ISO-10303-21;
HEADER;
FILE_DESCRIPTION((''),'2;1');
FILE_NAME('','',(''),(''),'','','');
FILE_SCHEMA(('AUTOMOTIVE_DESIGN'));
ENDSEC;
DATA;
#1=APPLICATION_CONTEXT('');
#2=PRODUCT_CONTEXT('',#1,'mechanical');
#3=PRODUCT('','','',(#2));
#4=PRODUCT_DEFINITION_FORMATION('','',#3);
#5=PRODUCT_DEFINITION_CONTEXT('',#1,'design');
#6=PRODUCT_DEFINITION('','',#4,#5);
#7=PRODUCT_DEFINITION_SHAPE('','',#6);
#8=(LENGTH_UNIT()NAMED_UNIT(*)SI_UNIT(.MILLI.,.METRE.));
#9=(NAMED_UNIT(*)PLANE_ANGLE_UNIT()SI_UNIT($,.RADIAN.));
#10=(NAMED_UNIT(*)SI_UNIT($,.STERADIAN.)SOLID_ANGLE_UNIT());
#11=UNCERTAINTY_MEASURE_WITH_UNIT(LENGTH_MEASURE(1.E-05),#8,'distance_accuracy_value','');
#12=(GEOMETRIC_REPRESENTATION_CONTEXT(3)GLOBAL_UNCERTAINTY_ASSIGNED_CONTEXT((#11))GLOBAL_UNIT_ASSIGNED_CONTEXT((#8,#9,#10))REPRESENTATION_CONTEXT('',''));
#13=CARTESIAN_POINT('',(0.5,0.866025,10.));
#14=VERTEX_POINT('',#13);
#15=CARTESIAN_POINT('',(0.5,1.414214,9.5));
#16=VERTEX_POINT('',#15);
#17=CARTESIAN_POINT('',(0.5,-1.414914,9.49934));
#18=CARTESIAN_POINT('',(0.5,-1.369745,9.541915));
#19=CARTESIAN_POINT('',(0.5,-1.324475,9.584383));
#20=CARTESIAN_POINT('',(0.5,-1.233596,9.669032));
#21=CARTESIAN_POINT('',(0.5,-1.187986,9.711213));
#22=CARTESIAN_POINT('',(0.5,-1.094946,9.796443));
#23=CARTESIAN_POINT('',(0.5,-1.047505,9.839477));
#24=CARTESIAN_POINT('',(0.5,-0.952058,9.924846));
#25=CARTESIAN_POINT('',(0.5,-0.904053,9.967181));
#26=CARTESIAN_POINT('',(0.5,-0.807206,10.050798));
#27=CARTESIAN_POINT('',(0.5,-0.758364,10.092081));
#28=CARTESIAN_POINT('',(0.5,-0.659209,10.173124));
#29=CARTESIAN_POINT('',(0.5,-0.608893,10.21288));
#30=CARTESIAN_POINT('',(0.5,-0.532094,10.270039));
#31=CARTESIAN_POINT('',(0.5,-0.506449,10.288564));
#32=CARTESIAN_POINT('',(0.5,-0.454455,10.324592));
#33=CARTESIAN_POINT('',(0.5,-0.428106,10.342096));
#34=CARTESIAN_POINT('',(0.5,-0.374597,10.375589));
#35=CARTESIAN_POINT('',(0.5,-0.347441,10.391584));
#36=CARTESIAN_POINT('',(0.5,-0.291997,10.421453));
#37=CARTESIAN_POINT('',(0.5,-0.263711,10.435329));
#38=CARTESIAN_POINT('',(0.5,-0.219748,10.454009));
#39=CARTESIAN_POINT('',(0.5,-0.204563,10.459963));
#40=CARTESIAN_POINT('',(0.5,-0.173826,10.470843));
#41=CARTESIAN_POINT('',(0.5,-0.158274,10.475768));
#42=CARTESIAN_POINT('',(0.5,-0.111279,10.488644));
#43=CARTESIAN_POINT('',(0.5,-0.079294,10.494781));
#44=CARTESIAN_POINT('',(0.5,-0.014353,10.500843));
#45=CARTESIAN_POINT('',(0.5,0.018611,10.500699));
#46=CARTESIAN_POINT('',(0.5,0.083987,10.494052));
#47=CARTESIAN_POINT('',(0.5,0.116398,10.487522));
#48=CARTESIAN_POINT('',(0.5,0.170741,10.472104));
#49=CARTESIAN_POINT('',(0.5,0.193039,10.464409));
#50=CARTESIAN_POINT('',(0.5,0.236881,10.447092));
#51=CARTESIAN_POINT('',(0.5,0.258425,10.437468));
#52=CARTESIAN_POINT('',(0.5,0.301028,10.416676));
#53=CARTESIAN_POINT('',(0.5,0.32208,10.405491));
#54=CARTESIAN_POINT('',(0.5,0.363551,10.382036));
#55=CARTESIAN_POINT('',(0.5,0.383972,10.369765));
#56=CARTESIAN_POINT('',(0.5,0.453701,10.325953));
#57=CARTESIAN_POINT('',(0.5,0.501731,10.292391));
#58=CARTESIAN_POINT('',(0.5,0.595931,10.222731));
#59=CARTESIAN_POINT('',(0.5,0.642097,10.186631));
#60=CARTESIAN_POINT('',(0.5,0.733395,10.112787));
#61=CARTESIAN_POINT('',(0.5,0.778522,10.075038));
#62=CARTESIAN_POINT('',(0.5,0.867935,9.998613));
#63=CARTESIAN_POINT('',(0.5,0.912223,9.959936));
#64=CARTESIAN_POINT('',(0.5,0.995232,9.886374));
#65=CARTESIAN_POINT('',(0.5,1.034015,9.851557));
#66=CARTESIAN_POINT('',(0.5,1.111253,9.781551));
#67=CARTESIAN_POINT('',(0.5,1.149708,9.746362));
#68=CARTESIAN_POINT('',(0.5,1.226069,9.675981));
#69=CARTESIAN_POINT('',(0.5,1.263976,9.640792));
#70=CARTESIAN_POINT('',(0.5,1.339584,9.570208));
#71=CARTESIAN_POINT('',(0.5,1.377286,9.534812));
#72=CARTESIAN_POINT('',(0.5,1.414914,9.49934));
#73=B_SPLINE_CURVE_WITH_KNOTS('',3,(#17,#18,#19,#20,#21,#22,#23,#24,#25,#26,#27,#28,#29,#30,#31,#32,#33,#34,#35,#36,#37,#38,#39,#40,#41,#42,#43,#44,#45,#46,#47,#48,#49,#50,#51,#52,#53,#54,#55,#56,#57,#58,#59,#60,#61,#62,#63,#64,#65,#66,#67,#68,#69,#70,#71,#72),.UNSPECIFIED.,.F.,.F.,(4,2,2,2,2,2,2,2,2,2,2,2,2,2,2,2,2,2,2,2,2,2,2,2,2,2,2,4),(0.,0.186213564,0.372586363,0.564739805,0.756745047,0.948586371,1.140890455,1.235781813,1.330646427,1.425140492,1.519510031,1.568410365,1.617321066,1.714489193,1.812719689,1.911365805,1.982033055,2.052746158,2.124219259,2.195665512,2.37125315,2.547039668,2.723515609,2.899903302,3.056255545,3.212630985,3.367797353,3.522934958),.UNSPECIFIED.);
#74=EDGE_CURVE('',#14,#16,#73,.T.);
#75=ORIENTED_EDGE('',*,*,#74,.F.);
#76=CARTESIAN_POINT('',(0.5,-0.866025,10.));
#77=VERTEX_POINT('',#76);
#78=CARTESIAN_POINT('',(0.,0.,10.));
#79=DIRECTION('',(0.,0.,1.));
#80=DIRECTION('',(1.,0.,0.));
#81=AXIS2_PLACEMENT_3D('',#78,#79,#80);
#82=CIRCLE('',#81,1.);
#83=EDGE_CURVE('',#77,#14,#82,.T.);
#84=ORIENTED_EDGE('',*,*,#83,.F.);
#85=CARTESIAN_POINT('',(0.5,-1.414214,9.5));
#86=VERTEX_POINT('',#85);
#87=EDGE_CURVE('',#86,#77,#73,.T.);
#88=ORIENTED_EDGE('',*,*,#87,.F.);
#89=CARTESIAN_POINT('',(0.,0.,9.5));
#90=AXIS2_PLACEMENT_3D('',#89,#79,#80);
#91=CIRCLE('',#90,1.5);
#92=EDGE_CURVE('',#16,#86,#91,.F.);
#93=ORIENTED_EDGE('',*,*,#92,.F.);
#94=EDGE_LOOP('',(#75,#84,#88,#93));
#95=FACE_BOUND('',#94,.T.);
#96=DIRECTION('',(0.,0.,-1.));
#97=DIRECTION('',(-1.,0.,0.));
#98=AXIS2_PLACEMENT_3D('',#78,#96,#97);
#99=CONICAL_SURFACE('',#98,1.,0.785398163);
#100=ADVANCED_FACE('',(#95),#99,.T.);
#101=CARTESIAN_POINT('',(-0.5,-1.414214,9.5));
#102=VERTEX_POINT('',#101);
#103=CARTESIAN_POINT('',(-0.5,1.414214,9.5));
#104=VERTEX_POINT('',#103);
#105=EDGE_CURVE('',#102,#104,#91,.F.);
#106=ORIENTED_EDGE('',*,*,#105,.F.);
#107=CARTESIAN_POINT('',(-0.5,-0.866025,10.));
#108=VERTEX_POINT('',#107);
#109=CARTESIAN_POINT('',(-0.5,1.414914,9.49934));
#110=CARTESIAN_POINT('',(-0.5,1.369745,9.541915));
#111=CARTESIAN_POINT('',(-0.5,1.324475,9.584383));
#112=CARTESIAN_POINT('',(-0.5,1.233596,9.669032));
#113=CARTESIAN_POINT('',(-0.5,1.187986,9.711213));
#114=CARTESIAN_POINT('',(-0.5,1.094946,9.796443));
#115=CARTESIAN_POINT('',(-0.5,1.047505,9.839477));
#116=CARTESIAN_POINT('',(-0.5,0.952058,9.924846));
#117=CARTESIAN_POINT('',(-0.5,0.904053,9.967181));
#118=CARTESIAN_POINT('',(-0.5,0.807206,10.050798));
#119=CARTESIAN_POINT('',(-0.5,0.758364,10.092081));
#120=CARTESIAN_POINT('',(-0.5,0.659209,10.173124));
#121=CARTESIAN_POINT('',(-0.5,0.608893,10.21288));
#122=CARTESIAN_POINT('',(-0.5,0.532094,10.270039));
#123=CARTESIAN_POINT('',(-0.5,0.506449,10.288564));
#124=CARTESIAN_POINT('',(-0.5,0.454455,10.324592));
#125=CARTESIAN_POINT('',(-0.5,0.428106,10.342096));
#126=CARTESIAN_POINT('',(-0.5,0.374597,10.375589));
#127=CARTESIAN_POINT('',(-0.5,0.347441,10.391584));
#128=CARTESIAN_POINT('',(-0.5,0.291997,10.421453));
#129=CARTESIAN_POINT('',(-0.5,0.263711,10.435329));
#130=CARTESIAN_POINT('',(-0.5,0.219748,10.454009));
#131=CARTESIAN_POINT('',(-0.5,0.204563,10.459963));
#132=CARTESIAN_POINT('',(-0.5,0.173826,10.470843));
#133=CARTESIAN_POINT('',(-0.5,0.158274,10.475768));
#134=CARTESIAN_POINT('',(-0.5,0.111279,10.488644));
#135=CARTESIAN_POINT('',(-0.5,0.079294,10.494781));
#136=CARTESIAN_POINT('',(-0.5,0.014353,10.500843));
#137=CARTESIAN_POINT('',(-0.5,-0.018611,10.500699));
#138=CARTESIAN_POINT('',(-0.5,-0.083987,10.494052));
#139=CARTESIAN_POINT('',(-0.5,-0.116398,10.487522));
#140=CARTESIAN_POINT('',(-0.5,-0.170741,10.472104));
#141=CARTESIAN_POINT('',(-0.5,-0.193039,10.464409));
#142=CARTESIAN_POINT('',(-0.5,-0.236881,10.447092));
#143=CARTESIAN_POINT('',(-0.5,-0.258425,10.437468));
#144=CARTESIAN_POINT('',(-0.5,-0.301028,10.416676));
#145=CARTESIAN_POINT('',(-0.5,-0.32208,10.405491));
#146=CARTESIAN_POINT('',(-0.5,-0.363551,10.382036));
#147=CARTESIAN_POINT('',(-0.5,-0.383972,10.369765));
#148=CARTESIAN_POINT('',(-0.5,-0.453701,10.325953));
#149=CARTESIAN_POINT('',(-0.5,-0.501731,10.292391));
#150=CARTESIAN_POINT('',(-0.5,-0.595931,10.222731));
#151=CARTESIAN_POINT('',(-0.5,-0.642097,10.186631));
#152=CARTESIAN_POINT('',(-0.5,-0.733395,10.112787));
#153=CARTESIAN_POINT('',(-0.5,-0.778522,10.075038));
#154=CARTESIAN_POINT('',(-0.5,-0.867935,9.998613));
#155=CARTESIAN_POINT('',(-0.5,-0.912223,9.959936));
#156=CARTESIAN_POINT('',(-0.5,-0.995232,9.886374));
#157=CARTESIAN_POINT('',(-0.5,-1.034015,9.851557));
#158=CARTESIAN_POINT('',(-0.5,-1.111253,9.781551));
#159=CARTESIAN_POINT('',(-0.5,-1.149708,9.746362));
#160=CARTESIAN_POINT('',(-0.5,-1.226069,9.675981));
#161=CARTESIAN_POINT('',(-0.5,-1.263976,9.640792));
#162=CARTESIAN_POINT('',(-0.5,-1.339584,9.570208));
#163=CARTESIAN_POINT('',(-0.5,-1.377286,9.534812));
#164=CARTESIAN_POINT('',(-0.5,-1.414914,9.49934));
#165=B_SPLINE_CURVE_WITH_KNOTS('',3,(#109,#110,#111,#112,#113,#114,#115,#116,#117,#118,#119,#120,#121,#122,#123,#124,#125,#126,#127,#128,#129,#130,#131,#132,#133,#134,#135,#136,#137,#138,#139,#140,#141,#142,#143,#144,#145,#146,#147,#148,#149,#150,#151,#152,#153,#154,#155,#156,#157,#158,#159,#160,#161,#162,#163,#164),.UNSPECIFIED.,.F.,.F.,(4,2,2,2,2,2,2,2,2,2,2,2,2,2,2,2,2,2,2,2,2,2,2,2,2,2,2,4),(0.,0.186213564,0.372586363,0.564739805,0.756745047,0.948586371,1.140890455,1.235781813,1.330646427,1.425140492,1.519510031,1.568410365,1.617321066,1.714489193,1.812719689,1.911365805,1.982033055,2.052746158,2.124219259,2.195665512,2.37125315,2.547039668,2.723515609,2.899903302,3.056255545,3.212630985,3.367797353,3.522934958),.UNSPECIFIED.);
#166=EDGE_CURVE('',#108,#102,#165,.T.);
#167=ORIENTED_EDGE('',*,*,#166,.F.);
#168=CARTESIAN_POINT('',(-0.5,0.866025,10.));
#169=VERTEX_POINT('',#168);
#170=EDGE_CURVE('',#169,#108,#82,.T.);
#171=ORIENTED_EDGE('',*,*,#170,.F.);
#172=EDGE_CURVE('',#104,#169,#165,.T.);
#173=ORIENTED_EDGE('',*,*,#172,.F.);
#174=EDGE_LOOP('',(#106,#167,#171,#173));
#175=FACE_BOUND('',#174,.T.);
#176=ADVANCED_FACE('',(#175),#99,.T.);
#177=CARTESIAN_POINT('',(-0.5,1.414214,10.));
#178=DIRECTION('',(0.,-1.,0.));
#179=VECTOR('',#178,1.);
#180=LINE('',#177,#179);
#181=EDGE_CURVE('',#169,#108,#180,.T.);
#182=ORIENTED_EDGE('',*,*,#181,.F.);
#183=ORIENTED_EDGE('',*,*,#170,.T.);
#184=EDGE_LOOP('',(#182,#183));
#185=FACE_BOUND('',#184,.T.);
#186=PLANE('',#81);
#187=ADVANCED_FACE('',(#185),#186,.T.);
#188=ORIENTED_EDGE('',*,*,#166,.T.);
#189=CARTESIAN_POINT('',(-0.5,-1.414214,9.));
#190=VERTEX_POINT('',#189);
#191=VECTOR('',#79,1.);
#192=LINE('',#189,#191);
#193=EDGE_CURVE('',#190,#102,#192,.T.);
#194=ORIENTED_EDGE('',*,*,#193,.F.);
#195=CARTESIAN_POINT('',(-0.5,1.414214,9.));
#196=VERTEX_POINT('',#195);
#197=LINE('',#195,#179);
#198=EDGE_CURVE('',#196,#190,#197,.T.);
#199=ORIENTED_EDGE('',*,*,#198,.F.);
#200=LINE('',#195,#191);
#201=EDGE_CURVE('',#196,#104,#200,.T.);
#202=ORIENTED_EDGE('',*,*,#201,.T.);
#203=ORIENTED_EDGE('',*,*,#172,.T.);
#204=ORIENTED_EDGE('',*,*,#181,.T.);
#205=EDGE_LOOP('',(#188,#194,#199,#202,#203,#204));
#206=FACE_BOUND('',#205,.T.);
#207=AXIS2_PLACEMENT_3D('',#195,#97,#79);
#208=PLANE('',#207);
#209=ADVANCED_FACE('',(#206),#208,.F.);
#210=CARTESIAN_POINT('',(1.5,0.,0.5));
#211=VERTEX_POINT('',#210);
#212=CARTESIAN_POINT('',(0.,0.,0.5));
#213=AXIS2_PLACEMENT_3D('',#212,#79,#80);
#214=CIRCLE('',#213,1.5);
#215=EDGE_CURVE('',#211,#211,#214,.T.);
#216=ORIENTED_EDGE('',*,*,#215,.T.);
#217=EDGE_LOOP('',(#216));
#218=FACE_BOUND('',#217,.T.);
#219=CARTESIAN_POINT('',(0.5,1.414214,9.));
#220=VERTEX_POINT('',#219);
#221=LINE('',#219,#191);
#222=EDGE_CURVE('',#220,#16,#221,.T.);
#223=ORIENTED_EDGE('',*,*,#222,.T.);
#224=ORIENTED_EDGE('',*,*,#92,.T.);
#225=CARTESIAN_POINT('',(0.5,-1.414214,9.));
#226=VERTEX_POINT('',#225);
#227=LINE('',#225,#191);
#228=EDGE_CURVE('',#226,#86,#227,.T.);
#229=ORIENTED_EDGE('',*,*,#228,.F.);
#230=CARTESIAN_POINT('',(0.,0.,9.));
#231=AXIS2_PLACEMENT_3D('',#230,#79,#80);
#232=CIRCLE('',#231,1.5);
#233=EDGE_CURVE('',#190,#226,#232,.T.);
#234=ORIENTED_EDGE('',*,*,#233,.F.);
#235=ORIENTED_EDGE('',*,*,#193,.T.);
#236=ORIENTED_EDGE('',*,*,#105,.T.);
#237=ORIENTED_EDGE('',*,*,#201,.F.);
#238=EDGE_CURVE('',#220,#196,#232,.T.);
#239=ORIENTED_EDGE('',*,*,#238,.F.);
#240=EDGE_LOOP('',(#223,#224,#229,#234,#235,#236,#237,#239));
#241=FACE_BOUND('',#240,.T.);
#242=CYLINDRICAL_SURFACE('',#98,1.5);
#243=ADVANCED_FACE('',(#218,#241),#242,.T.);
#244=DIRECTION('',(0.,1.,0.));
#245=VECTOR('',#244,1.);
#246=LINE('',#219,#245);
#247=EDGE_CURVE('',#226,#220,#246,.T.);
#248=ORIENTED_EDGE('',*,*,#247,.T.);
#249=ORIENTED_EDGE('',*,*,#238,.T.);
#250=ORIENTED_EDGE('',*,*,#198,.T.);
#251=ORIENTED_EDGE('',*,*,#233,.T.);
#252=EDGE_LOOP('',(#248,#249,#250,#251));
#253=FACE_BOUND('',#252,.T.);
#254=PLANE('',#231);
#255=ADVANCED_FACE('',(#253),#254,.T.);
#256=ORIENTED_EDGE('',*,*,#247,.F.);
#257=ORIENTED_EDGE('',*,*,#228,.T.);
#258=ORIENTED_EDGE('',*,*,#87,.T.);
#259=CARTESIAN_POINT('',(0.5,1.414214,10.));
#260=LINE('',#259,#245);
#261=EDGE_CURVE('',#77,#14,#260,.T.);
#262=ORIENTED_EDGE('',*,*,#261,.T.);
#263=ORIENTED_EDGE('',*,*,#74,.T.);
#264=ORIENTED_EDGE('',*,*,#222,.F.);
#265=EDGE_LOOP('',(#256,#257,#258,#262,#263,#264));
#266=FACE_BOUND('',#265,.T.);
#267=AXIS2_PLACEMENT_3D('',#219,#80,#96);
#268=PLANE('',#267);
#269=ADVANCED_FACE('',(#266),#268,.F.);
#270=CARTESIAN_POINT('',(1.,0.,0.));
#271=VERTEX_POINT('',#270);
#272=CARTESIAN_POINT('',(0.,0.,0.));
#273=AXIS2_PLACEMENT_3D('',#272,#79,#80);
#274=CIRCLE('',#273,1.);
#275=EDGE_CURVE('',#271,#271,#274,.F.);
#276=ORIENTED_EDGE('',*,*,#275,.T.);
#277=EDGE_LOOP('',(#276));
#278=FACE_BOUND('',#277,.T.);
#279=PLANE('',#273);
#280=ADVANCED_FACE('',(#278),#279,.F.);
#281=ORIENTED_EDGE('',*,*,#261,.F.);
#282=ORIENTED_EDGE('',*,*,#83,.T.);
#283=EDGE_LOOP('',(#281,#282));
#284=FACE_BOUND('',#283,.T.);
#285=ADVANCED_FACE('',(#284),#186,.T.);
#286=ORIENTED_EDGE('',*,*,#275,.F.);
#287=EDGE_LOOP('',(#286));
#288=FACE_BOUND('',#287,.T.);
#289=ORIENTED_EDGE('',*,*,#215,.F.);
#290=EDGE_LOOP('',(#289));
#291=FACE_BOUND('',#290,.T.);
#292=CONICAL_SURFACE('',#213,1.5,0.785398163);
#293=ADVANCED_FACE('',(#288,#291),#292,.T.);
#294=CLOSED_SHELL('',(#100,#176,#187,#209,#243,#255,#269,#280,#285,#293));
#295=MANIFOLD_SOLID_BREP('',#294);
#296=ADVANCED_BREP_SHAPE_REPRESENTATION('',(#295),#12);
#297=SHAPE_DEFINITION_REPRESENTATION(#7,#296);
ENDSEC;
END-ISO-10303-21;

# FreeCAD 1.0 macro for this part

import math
import FreeCAD as App
import Part
import Sketcher


def edges_at(feature, points):
    """Names of the edges that pass closest to the given points."""
    edges = feature.Shape.Edges
    near = lambda p: min(range(len(edges)), key=lambda i: edges[i].distToShape(Part.Vertex(*p))[0])
    return sorted({f"Edge{near(p) + 1}" for p in points})

doc = App.newDocument("Part")
body = doc.addObject("PartDesign::Body", "Body")

# Sketch on XY plane
sketch1 = body.newObject("Sketcher::SketchObject", "Sketch")
sketch1.AttachmentSupport = (doc.getObject("XY_Plane"), [""])
sketch1.MapMode = "FlatFace"
sketch1.addGeometry(Part.Circle(App.Vector(0, 0, 0), App.Vector(0, 0, 1), 1.5), False)
sketch1.addConstraint(Sketcher.Constraint("Coincident", 0, 3, -1, 1))
sketch1.addConstraint(Sketcher.Constraint("Diameter", 0, 3.0))
pad1 = body.newObject("PartDesign::Pad", "Pad")
pad1.Profile = sketch1
pad1.Length = 10
doc.recompute()

chamfer = body.newObject("PartDesign::Chamfer", "Chamfer")
chamfer.Base = (pad1, edges_at(pad1, [(-1.5, 0, 0), (-1.5, 0, 10)]))
chamfer.Size = 0.5

# Sketch on XY plane
sketch2 = body.newObject("Sketcher::SketchObject", "Sketch001")
sketch2.AttachmentSupport = (doc.getObject("XY_Plane"), [""])
sketch2.MapMode = "FlatFace"
sketch2.AttachmentOffset = App.Placement(App.Vector(0, 0, 9), App.Rotation())
sketch2.addGeometry(Part.LineSegment(App.Vector(-0.5, 1.4, 0), App.Vector(-0.5, -1.4, 0)), False)
sketch2.addGeometry(Part.ArcOfCircle(Part.Circle(App.Vector(0, 0, 0), App.Vector(0, 0, 1), 1.5), math.radians(-109), math.radians(-71)), False)
sketch2.addGeometry(Part.LineSegment(App.Vector(0.5, -1.4, 0), App.Vector(0.5, 1.4, 0)), False)
sketch2.addGeometry(Part.ArcOfCircle(Part.Circle(App.Vector(0, 0, 0), App.Vector(0, 0, 1), 1.5), math.radians(71), math.radians(109)), False)
sketch2.addConstraint(Sketcher.Constraint("Coincident", 0, 2, 1, 1))
sketch2.addConstraint(Sketcher.Constraint("Coincident", 1, 2, 2, 1))
sketch2.addConstraint(Sketcher.Constraint("Coincident", 2, 2, 3, 1))
sketch2.addConstraint(Sketcher.Constraint("Coincident", 3, 2, 0, 1))
sketch2.addConstraint(Sketcher.Constraint("Vertical", 0))
sketch2.addConstraint(Sketcher.Constraint("Vertical", 2))
sketch2.addConstraint(Sketcher.Constraint("Coincident", 1, 3, -1, 1))
sketch2.addConstraint(Sketcher.Constraint("Coincident", 3, 3, -1, 1))
sketch2.addConstraint(Sketcher.Constraint("Equal", 1, 3))
sketch2.addConstraint(Sketcher.Constraint("Horizontal", 0, 2, 1, 2))
sketch2.addConstraint(Sketcher.Constraint("Radius", 1, 1.5))
sketch2.addConstraint(Sketcher.Constraint("DistanceX", 0, 2, 1, 2, 1.0))
pocket1 = body.newObject("PartDesign::Pocket", "Pocket")
pocket1.Profile = sketch2
pocket1.Length = 1
pocket1.Reversed = True

doc.recompute()
